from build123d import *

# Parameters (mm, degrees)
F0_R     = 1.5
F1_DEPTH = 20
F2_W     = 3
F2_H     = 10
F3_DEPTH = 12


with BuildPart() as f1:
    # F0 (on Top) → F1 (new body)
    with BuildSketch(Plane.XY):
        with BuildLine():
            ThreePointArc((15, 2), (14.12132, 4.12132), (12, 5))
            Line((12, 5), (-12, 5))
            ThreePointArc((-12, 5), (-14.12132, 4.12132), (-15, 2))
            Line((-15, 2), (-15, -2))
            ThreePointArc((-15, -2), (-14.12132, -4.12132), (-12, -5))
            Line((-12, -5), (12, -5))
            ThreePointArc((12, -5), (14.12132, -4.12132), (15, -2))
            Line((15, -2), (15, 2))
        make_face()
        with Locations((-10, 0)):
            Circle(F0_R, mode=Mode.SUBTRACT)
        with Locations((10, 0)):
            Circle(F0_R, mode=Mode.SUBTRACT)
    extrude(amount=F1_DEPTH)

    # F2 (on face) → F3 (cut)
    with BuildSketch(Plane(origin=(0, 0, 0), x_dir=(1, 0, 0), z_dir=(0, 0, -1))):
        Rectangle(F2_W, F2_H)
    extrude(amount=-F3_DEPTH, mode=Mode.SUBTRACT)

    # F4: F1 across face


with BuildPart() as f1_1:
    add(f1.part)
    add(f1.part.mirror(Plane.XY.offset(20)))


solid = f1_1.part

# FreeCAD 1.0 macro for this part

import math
import FreeCAD as App
import Part
import Sketcher

V = App.Vector

doc = App.newDocument("Part")
params = doc.addObject("Spreadsheet::Sheet", "Params")
for row, (alias, value) in enumerate([
    ("sketch1_diameter", "3 mm"),
    ("sketch1_radius", "3.000001 mm"),
    ("sketch1_width", "24 mm"),
    ("sketch1_height", "4 mm"),
    ("pad1_length", "20 mm"),
    ("sketch2_width", "3 mm"),
    ("sketch2_height", "10 mm"),
    ("pocket1_length", "12 mm"),
], start=1):
    params.set(f"A{row}", alias)
    params.set(f"B{row}", "=" + value)
    params.setAlias(f"B{row}", alias)

body = doc.addObject("PartDesign::Body", "Body")

sketch1 = doc.addObject("Sketcher::SketchObject", "Sketch")
body.addObject(sketch1)
sketch1.AttachmentSupport = (doc.XY_Plane, [""])
sketch1.MapMode = "FlatFace"
sketch1.addGeometry([
    Part.ArcOfCircle(Part.Circle(V(11.999999, 1.999999, 0), V(0, 0, 1), 3.000001), math.radians(0.000022), math.radians(89.999978)),
    Part.LineSegment(V(12, 5, 0), V(-12, 5, 0)),
    Part.ArcOfCircle(Part.Circle(V(-11.999999, 1.999999, 0), V(0, 0, 1), 3.000001), math.radians(90.000022), math.radians(179.999978)),
    Part.LineSegment(V(-15, 2, 0), V(-15, -2, 0)),
    Part.ArcOfCircle(Part.Circle(V(-11.999999, -1.999999, 0), V(0, 0, 1), 3.000001), math.radians(-179.999978), math.radians(-90.000022)),
    Part.LineSegment(V(-12, -5, 0), V(12, -5, 0)),
    Part.ArcOfCircle(Part.Circle(V(11.999999, -1.999999, 0), V(0, 0, 1), 3.000001), math.radians(-89.999978), math.radians(-0.000022)),
    Part.LineSegment(V(15, -2, 0), V(15, 2, 0)),
    Part.Circle(V(-10, 0, 0), V(0, 0, 1), 1.5),
    Part.Circle(V(10, 0, 0), V(0, 0, 1), 1.5),
], False)
sketch1.addConstraint([
    Sketcher.Constraint("Tangent", 0, 2, 1, 1),
    Sketcher.Constraint("Tangent", 1, 2, 2, 1),
    Sketcher.Constraint("Tangent", 2, 2, 3, 1),
    Sketcher.Constraint("Tangent", 3, 2, 4, 1),
    Sketcher.Constraint("Tangent", 4, 2, 5, 1),
    Sketcher.Constraint("Tangent", 5, 2, 6, 1),
    Sketcher.Constraint("Tangent", 6, 2, 7, 1),
    Sketcher.Constraint("Tangent", 7, 2, 0, 1),
    Sketcher.Constraint("Horizontal", 1),
    Sketcher.Constraint("Vertical", 3),
    Sketcher.Constraint("Horizontal", 5),
    Sketcher.Constraint("Vertical", 7),
    Sketcher.Constraint("Equal", 0, 2),
    Sketcher.Constraint("Equal", 2, 4),
    Sketcher.Constraint("Equal", 4, 6),
    Sketcher.Constraint("Equal", 8, 9),
    Sketcher.Constraint("Symmetric", 0, 3, 4, 3, -1, 1),
    Sketcher.Constraint("Symmetric", 8, 3, 9, 3, -1, 1),
    Sketcher.Constraint("PointOnObject", 8, 3, -1),
    Sketcher.Constraint("Diameter", 8, 3.0),
    Sketcher.Constraint("Radius", 0, 3.000001),
    Sketcher.Constraint("DistanceX", 1, 2, 1, 1, 24.0),
    Sketcher.Constraint("DistanceY", 3, 2, 3, 1, 4.0),
    Sketcher.Constraint("DistanceX", 8, 3, -1, 1, 10.0),
])
sketch1.setExpression("Constraints[19]", "Params.sketch1_diameter")
sketch1.setExpression("Constraints[20]", "Params.sketch1_radius")
sketch1.setExpression("Constraints[21]", "Params.sketch1_width")
sketch1.setExpression("Constraints[22]", "Params.sketch1_height")
pad1 = doc.addObject("PartDesign::Pad", "Pad")
body.addObject(pad1)
pad1.Profile = sketch1
pad1.setExpression("Length", "Params.pad1_length")

sketch2 = doc.addObject("Sketcher::SketchObject", "Sketch001")
body.addObject(sketch2)
sketch2.AttachmentSupport = (doc.XY_Plane, [""])
sketch2.MapMode = "FlatFace"
sketch2.addGeometry([
    Part.LineSegment(V(-1.5, -5, 0), V(-1.5, 5, 0)),
    Part.LineSegment(V(-1.5, 5, 0), V(1.5, 5, 0)),
    Part.LineSegment(V(1.5, 5, 0), V(1.5, -5, 0)),
    Part.LineSegment(V(1.5, -5, 0), V(-1.5, -5, 0)),
], False)
sketch2.addConstraint([
    Sketcher.Constraint("Coincident", 0, 2, 1, 1),
    Sketcher.Constraint("Coincident", 1, 2, 2, 1),
    Sketcher.Constraint("Coincident", 2, 2, 3, 1),
    Sketcher.Constraint("Coincident", 3, 2, 0, 1),
    Sketcher.Constraint("Vertical", 0),
    Sketcher.Constraint("Horizontal", 1),
    Sketcher.Constraint("Vertical", 2),
    Sketcher.Constraint("Horizontal", 3),
    Sketcher.Constraint("Symmetric", 0, 2, 2, 2, -1, 1),
    Sketcher.Constraint("DistanceX", 1, 1, 1, 2, 3.0),
    Sketcher.Constraint("DistanceY", 0, 1, 0, 2, 10.0),
])
sketch2.setExpression("Constraints[9]", "Params.sketch2_width")
sketch2.setExpression("Constraints[10]", "Params.sketch2_height")
pocket1 = doc.addObject("PartDesign::Pocket", "Pocket")
body.addObject(pocket1)
pocket1.Profile = sketch2
pocket1.setExpression("Length", "Params.pocket1_length")
pocket1.Reversed = True
body2 = doc.addObject("PartDesign::Body", "Body001")
doc.recompute()

body2.BaseFeature = body
doc.recompute()

mirroring = doc.addObject("Part::Mirroring", "Mirroring")
mirroring.Source = body
mirroring.Base = V(0, 0, 20)
mirroring.Normal = V(0, 0, 1)
body3 = doc.addObject("PartDesign::Body", "Body002")
body3.BaseFeature = mirroring
boolean = doc.addObject("PartDesign::Boolean", "Boolean")
body2.addObject(boolean)
boolean.Type = "Fuse"
boolean.addObjects([body3])
doc.recompute()
mirroring.Visibility = False

doc.recompute()
